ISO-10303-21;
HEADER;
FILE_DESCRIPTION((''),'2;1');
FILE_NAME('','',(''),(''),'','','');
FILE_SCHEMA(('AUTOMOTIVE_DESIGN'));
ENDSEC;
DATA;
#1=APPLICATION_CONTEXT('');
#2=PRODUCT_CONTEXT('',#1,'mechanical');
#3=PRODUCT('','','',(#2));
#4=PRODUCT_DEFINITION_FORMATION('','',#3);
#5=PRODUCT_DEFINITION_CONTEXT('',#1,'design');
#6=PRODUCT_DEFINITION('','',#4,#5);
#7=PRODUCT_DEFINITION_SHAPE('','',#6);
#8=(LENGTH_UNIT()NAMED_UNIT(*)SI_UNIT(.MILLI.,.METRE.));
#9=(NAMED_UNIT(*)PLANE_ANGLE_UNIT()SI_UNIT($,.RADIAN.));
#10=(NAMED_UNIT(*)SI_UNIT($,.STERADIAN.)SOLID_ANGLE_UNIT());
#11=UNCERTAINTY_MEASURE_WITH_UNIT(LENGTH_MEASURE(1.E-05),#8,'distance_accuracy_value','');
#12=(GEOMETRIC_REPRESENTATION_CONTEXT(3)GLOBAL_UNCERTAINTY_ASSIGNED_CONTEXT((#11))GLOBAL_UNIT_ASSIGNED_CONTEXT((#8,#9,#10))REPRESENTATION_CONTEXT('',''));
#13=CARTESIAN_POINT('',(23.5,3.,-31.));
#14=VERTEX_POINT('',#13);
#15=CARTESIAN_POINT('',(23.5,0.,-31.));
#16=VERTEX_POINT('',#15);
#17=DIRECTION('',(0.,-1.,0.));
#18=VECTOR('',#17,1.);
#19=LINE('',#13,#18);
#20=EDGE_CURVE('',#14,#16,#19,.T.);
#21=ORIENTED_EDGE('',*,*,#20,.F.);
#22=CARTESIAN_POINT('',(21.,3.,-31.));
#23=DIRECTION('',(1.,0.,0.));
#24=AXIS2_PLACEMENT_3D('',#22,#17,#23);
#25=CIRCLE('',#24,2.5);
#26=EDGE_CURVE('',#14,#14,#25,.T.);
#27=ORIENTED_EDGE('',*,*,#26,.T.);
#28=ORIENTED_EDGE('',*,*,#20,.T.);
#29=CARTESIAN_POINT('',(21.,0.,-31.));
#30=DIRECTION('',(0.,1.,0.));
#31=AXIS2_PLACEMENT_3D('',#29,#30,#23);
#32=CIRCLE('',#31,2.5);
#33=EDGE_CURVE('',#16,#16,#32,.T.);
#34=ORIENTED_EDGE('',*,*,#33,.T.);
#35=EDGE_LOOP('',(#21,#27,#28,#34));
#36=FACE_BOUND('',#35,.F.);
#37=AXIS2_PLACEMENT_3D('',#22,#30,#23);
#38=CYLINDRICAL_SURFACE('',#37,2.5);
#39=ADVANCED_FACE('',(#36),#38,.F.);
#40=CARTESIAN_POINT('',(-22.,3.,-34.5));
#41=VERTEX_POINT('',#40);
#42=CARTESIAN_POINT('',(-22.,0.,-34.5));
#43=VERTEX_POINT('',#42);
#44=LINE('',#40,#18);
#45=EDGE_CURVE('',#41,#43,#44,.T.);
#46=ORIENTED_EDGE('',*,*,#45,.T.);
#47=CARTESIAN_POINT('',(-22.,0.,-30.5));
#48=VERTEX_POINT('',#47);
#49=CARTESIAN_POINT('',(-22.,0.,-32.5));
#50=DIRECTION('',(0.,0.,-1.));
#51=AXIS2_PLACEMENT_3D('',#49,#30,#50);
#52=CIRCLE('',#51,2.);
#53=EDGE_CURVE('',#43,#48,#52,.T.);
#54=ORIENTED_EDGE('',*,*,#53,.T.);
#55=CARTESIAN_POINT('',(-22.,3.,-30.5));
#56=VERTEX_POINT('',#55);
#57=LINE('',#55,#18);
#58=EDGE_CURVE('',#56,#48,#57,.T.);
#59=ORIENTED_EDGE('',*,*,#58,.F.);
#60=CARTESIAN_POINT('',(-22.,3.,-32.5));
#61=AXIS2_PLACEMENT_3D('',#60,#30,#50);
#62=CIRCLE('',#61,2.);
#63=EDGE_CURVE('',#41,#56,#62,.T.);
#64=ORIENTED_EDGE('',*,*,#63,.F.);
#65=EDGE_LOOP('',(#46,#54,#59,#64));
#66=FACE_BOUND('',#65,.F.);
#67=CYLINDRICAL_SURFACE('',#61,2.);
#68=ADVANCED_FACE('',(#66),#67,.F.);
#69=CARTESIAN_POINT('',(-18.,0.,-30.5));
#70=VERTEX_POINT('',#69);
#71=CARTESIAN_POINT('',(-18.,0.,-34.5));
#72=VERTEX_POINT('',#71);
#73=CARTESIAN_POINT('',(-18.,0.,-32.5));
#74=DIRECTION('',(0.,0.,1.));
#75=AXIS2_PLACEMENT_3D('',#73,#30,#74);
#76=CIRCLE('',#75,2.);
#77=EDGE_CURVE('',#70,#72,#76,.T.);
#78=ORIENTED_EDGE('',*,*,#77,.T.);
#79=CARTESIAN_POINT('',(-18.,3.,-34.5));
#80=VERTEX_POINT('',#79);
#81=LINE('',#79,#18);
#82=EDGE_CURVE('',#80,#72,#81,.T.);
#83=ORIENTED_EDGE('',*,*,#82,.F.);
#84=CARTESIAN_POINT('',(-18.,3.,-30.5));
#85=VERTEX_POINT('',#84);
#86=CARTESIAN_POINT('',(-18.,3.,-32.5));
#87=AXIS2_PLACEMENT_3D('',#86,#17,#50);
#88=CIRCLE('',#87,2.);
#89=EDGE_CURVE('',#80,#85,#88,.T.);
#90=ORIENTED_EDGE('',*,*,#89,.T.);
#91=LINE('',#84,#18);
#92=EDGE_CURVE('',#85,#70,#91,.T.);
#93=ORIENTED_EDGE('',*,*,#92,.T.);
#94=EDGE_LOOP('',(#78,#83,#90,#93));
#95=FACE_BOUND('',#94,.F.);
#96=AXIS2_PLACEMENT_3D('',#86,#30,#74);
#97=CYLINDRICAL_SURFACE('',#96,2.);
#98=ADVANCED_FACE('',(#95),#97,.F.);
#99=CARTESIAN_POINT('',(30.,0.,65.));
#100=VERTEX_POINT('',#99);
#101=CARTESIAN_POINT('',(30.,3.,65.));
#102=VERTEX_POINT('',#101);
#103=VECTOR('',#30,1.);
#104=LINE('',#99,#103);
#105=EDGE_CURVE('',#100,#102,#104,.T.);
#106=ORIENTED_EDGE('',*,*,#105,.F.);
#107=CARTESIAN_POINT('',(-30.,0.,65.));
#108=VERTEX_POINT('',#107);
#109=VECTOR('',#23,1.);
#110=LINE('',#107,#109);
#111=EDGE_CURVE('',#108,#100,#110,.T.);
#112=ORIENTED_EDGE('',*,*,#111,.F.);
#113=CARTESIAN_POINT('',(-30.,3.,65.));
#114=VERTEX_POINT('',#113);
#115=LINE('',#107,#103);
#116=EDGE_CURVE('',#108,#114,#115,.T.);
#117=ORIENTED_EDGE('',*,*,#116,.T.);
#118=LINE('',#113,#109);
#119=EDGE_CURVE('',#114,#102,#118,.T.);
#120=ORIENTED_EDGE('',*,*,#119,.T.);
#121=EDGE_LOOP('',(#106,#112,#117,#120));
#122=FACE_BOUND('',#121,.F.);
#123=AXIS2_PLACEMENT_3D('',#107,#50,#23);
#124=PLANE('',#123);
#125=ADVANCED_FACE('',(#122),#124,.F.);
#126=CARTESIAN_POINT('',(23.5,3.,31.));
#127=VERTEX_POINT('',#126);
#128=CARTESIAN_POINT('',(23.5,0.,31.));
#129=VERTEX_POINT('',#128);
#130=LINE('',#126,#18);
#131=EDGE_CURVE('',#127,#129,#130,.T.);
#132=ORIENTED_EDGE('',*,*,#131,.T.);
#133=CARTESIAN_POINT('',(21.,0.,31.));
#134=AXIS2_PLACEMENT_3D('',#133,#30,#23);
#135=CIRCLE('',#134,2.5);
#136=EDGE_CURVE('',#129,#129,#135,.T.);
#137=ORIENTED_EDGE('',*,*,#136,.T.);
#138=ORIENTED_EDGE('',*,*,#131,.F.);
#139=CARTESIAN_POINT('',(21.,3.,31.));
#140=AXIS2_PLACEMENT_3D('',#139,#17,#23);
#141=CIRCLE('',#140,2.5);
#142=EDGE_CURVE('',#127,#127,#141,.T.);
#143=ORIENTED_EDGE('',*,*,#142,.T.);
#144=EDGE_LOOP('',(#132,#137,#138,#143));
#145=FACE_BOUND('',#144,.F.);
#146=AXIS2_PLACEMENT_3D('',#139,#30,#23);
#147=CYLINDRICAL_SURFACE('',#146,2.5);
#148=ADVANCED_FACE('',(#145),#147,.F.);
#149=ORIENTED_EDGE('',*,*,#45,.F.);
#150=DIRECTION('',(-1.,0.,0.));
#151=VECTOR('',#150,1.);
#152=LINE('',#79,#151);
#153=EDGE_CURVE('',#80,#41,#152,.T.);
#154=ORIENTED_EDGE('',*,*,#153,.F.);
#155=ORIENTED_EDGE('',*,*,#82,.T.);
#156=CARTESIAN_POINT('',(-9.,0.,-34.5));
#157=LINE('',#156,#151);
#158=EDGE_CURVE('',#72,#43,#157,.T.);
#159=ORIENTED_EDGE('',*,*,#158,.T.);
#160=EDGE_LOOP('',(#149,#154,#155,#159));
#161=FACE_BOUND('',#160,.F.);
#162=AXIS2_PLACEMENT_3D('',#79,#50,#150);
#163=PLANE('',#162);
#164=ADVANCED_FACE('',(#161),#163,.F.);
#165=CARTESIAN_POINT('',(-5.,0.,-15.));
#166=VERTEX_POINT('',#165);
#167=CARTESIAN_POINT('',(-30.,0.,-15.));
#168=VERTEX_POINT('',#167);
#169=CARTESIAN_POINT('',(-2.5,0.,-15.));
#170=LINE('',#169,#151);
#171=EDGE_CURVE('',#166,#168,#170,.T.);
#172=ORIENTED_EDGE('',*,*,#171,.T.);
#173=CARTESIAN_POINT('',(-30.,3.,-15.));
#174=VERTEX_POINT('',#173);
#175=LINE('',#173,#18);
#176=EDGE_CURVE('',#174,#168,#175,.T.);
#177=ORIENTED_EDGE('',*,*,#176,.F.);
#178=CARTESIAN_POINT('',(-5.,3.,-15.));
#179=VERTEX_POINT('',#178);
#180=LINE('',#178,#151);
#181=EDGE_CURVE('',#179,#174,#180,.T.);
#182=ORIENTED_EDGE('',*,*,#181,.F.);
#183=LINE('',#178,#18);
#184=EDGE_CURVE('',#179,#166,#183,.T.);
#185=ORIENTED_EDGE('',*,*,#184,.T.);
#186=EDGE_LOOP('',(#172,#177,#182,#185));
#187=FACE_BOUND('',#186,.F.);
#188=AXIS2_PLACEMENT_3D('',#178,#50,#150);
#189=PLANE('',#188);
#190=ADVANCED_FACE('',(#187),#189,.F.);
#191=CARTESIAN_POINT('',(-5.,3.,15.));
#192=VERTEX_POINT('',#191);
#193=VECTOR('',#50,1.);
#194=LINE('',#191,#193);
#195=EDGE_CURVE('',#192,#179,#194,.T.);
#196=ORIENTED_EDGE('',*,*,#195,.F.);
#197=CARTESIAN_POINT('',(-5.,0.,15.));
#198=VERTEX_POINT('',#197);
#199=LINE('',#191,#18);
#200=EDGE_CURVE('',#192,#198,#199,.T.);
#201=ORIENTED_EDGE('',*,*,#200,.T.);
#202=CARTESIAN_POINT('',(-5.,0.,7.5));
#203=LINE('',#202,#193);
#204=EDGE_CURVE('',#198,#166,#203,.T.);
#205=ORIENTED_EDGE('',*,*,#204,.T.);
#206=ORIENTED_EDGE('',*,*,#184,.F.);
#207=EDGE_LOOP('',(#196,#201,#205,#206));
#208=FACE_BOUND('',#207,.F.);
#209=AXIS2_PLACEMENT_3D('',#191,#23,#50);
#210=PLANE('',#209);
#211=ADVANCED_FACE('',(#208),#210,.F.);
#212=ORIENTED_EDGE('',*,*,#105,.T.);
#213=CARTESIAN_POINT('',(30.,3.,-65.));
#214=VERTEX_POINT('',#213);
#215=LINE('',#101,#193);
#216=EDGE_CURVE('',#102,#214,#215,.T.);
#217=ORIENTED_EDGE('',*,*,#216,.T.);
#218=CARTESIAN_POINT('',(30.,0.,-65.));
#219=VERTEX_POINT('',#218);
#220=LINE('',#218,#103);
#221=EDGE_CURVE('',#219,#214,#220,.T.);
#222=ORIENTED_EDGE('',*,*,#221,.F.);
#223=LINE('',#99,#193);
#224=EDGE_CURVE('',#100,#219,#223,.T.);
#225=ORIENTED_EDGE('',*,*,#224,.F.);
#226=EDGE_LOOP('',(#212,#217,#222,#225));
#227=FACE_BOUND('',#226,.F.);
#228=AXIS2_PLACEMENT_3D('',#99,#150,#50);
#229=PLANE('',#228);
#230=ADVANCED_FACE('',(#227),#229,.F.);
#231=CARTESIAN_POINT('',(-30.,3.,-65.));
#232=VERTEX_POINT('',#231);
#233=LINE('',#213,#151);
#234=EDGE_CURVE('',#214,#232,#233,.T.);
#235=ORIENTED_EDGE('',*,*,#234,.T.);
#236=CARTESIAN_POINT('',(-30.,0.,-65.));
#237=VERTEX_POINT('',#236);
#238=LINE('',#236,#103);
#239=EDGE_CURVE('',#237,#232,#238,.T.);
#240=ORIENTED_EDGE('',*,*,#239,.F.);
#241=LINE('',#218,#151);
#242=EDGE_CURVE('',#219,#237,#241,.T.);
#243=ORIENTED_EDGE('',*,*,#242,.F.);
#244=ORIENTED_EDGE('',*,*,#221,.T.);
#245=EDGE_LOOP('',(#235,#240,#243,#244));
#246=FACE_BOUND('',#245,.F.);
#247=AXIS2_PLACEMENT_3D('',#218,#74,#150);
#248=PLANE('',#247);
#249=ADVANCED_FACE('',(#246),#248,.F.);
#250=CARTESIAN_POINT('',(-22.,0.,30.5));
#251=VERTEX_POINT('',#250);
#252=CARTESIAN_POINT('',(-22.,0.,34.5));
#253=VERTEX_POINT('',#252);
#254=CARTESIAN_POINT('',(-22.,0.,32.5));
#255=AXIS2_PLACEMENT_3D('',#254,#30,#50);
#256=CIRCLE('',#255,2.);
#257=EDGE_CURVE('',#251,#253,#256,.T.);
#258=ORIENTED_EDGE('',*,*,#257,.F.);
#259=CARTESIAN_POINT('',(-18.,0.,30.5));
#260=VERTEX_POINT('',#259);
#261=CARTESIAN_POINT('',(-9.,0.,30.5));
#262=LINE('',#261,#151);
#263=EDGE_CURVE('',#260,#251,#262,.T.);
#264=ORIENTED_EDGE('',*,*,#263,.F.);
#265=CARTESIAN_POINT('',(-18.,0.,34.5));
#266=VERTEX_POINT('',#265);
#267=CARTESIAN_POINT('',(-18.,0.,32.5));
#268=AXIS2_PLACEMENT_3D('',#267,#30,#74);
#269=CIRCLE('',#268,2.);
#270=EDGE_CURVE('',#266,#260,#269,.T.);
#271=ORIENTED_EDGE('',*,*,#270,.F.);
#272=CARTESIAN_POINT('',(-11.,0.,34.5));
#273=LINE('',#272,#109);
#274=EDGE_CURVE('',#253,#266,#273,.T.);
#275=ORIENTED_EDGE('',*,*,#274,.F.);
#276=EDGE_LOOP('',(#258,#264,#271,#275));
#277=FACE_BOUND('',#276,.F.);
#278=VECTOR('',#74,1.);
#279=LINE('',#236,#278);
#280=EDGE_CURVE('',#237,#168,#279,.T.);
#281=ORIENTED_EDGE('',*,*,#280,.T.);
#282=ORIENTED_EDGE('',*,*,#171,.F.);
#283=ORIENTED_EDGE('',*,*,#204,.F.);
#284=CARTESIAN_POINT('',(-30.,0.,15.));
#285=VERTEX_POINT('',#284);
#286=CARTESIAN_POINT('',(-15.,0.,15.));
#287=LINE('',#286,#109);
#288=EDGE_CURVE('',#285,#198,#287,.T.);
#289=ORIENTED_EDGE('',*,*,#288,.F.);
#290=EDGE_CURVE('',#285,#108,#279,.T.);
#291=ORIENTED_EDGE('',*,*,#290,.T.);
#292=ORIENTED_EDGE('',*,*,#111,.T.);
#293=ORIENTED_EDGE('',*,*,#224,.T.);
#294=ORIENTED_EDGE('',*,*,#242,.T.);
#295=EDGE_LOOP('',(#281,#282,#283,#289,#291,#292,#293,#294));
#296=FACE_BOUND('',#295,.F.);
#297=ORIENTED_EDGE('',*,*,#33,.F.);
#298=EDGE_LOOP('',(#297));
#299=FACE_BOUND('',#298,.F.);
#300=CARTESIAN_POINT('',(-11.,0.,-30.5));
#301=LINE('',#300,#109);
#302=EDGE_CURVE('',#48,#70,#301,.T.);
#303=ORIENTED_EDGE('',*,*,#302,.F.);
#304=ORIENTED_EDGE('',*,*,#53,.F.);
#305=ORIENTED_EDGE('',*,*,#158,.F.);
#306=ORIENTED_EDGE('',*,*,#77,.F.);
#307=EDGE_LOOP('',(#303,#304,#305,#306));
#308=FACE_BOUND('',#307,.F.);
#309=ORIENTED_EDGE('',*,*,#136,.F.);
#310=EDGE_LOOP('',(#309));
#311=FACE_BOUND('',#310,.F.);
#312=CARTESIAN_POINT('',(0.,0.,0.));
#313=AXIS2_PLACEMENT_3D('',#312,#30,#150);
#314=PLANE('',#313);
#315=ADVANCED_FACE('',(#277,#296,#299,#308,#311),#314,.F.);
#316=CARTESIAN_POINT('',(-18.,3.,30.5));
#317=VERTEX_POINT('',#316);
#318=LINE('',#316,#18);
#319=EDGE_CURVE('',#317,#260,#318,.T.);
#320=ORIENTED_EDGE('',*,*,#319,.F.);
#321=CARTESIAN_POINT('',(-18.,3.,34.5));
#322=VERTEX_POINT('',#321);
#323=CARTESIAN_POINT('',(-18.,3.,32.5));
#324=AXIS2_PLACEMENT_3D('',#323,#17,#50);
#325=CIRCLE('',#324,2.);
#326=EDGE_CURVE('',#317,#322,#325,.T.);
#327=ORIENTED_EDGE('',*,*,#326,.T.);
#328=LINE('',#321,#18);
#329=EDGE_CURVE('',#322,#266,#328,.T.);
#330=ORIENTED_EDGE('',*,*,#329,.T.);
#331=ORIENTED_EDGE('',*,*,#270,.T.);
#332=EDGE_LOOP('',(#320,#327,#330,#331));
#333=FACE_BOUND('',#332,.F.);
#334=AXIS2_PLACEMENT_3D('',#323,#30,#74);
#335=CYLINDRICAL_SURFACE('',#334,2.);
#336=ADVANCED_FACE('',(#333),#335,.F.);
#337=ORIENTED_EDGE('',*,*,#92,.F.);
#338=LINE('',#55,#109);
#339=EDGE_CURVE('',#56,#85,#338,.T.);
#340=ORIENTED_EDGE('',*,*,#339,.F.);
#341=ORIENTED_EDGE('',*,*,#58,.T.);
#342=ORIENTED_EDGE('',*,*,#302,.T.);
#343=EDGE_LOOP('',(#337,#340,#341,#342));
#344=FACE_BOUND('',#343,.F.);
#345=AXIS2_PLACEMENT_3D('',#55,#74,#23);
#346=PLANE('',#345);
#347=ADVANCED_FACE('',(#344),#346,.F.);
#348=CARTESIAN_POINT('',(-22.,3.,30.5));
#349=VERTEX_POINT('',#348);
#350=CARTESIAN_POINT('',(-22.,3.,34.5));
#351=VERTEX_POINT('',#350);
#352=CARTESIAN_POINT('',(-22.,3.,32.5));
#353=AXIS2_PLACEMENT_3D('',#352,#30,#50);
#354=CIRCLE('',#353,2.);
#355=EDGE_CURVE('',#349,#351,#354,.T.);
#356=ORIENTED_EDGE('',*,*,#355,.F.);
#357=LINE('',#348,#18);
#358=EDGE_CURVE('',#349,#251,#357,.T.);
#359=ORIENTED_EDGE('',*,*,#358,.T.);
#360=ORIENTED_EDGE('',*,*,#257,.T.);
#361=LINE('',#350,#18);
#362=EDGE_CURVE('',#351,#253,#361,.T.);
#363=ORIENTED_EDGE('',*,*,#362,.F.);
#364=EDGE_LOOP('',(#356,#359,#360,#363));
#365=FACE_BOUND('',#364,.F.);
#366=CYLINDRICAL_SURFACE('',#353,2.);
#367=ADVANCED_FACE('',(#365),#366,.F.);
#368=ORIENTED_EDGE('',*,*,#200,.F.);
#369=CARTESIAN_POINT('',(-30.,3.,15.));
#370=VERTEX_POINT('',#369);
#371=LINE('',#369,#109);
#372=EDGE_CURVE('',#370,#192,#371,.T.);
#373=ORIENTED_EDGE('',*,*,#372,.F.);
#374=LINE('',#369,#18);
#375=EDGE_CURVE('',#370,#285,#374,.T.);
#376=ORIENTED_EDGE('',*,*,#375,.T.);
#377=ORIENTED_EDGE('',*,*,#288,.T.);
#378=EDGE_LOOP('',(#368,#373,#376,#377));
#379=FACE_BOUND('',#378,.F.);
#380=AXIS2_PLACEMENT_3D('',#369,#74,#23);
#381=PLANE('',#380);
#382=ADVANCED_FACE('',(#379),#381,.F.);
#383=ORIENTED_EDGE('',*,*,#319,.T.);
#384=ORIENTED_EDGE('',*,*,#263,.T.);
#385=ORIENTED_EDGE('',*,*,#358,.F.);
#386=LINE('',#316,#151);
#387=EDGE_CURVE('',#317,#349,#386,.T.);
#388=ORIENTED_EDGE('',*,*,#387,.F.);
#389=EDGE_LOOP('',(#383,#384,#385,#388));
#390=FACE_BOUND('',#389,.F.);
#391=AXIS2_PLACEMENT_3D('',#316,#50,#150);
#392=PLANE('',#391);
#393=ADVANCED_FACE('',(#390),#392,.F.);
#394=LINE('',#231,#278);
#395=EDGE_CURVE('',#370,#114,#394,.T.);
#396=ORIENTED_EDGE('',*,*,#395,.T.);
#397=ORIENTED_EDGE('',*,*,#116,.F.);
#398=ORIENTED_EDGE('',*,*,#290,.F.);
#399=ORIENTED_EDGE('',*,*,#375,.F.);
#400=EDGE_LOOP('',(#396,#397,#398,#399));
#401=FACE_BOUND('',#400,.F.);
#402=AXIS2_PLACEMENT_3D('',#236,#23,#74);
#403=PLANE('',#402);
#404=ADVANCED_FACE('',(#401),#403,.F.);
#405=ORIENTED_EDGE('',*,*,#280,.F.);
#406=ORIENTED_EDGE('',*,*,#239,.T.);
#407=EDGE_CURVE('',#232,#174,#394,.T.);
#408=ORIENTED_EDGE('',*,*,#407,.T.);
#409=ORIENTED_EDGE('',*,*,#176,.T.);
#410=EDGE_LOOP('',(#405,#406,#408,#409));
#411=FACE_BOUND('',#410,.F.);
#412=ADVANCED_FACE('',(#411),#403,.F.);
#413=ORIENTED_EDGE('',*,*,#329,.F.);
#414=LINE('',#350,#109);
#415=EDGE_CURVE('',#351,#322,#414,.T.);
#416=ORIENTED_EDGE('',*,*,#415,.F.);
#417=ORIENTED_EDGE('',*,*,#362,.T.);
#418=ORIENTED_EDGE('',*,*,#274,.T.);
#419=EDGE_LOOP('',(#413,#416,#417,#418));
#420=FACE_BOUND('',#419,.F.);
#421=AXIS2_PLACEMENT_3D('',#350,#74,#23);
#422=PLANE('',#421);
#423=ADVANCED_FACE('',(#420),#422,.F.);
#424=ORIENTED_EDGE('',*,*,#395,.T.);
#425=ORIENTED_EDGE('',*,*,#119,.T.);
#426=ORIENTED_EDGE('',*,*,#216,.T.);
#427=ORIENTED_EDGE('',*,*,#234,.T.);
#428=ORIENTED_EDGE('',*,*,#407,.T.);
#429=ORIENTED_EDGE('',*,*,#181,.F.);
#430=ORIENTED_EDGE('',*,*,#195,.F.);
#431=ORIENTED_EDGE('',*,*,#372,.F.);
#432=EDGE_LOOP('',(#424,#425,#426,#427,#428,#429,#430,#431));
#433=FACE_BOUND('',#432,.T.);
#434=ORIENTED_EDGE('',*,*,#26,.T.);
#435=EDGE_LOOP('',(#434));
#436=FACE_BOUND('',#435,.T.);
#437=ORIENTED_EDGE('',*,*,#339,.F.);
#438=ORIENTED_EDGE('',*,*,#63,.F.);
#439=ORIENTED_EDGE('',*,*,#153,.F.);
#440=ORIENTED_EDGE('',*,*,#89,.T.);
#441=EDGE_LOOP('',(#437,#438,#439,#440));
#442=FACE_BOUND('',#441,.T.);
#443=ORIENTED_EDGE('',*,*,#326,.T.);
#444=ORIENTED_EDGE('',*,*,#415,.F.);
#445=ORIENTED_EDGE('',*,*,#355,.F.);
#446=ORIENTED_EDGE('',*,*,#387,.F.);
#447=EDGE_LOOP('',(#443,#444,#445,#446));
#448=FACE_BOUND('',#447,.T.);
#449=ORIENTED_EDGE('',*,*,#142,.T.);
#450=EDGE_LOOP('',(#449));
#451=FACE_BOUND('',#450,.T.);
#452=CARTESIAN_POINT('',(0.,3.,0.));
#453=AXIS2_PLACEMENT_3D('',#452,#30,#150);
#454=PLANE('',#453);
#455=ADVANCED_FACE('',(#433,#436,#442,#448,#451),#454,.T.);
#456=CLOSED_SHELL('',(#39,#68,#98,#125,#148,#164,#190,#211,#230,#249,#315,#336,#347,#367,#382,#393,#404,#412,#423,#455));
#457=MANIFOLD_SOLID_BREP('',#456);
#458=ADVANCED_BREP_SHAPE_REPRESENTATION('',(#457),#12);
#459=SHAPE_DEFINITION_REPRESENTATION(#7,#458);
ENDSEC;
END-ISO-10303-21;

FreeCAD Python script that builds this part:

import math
import FreeCAD as App
import Part
import Sketcher
Q = App.Units.Quantity


def add_polygon(sketch, points):
    """Adds a closed chain of lines whose ends are joined by coincident constraints."""
    first, n = sketch.GeometryCount, len(points)
    for a, b in zip(points, points[1:] + points[:1]):
        sketch.addGeometry(Part.LineSegment(App.Vector(*a, 0), App.Vector(*b, 0)), False)
    for i in range(n):
        sketch.addConstraint(Sketcher.Constraint("Coincident", first + i, 2, first + (i + 1) % n, 1))

doc = App.newDocument("Part")
body = doc.addObject("PartDesign::Body", "Body")

sketch1 = body.newObject("Sketcher::SketchObject", "Sketch")
sketch1.AttachmentSupport = (doc.getObject("XZ_Plane"), [""])
sketch1.MapMode = "FlatFace"
add_polygon(sketch1, [(-30, -65), (-30, 65), (30, 65), (30, -65)])
sketch1.addConstraint([
    Sketcher.Constraint("Vertical", 0),
    Sketcher.Constraint("Horizontal", 1),
    Sketcher.Constraint("Vertical", 2),
    Sketcher.Constraint("Horizontal", 3),
    Sketcher.Constraint("Symmetric", 0, 2, 2, 2, -1, 1),
    Sketcher.Constraint("DistanceX", 1, 1, 1, 2, Q("60 mm")),
    Sketcher.Constraint("DistanceY", 0, 1, 0, 2, Q("130 mm")),
])
pad1 = body.newObject("PartDesign::Pad", "Pad")
pad1.Profile = sketch1
pad1.Length = 3
pad1.Reversed = True

sketch2 = body.newObject("Sketcher::SketchObject", "Sketch001")
sketch2.AttachmentSupport = (doc.getObject("XZ_Plane"), [""])
sketch2.MapMode = "FlatFace"
sketch2.AttachmentOffset = App.Placement(App.Vector(0, 0, -3), App.Rotation())
sketch2.addGeometry(Part.Circle(App.Vector(21, -31, 0), App.Vector(0, 0, 1), 2.5), False)
sketch2.addGeometry(Part.Circle(App.Vector(21, 31, 0), App.Vector(0, 0, 1), 2.5), False)
sketch2.addGeometry(Part.ArcOfCircle(Part.Circle(App.Vector(-18, -32.5, 0), App.Vector(0, 0, 1), 2), math.radians(-90), math.radians(90)), False)
sketch2.addGeometry(Part.LineSegment(App.Vector(-18, -34.5, 0), App.Vector(-22, -34.5, 0)), False)
sketch2.addGeometry(Part.ArcOfCircle(Part.Circle(App.Vector(-22, -32.5, 0), App.Vector(0, 0, 1), 2), math.radians(90), math.radians(270)), False)
sketch2.addGeometry(Part.LineSegment(App.Vector(-22, -30.5, 0), App.Vector(-18, -30.5, 0)), False)
sketch2.addGeometry(Part.ArcOfCircle(Part.Circle(App.Vector(-18, 32.5, 0), App.Vector(0, 0, 1), 2), math.radians(-90), math.radians(90)), False)
sketch2.addGeometry(Part.LineSegment(App.Vector(-18, 30.5, 0), App.Vector(-22, 30.5, 0)), False)
sketch2.addGeometry(Part.ArcOfCircle(Part.Circle(App.Vector(-22, 32.5, 0), App.Vector(0, 0, 1), 2), math.radians(90), math.radians(270)), False)
sketch2.addGeometry(Part.LineSegment(App.Vector(-22, 34.5, 0), App.Vector(-18, 34.5, 0)), False)
add_polygon(sketch2, [(-5, -15), (-30, -15), (-30, 15), (-5, 15)])
sketch2.addConstraint([
    Sketcher.Constraint("Tangent", 2, 1, 3, 1),
    Sketcher.Constraint("Tangent", 3, 2, 4, 2),
    Sketcher.Constraint("Tangent", 4, 1, 5, 1),
    Sketcher.Constraint("Tangent", 5, 2, 2, 2),
    Sketcher.Constraint("Tangent", 6, 1, 7, 1),
    Sketcher.Constraint("Tangent", 7, 2, 8, 2),
    Sketcher.Constraint("Tangent", 8, 1, 9, 1),
    Sketcher.Constraint("Tangent", 9, 2, 6, 2),
    Sketcher.Constraint("Horizontal", 3),
    Sketcher.Constraint("Horizontal", 5),
    Sketcher.Constraint("Horizontal", 7),
    Sketcher.Constraint("Horizontal", 9),
    Sketcher.Constraint("Horizontal", 10),
    Sketcher.Constraint("Vertical", 11),
    Sketcher.Constraint("Horizontal", 12),
    Sketcher.Constraint("Vertical", 13),
    Sketcher.Constraint("Equal", 0, 1),
    Sketcher.Constraint("Equal", 4, 6),
    Sketcher.Constraint("Symmetric", 0, 3, 1, 3, -1),
    Sketcher.Constraint("Symmetric", 2, 3, 6, 3, -1),
    Sketcher.Constraint("Vertical", 4, 3, 8, 3),
    Sketcher.Constraint("Diameter", 0, Q("5 mm")),
    Sketcher.Constraint("Radius", 2, Q("2 mm")),
    Sketcher.Constraint("DistanceX", 3, 2, 3, 1, Q("4 mm")),
    Sketcher.Constraint("DistanceX", 10, 2, 10, 1, Q("25 mm")),
    Sketcher.Constraint("DistanceY", 11, 1, 11, 2, Q("30 mm")),
    Sketcher.Constraint("DistanceY", 0, 3, -1, 1, Q("31 mm")),
    Sketcher.Constraint("DistanceX", 10, 2, -1, 1, Q("30 mm")),
    Sketcher.Constraint("DistanceY", 2, 3, -1, 1, Q("32.5 mm")),
    Sketcher.Constraint("DistanceX", -1, 1, 0, 3, Q("21 mm")),
    Sketcher.Constraint("DistanceX", 2, 3, -1, 1, Q("18 mm")),
    Sketcher.Constraint("DistanceY", 10, 2, -1, 1, Q("15 mm")),
])
pocket1 = body.newObject("PartDesign::Pocket", "Pocket")
pocket1.Profile = sketch2
pocket1.Length = 10
pocket1.Reversed = True

doc.recompute()
